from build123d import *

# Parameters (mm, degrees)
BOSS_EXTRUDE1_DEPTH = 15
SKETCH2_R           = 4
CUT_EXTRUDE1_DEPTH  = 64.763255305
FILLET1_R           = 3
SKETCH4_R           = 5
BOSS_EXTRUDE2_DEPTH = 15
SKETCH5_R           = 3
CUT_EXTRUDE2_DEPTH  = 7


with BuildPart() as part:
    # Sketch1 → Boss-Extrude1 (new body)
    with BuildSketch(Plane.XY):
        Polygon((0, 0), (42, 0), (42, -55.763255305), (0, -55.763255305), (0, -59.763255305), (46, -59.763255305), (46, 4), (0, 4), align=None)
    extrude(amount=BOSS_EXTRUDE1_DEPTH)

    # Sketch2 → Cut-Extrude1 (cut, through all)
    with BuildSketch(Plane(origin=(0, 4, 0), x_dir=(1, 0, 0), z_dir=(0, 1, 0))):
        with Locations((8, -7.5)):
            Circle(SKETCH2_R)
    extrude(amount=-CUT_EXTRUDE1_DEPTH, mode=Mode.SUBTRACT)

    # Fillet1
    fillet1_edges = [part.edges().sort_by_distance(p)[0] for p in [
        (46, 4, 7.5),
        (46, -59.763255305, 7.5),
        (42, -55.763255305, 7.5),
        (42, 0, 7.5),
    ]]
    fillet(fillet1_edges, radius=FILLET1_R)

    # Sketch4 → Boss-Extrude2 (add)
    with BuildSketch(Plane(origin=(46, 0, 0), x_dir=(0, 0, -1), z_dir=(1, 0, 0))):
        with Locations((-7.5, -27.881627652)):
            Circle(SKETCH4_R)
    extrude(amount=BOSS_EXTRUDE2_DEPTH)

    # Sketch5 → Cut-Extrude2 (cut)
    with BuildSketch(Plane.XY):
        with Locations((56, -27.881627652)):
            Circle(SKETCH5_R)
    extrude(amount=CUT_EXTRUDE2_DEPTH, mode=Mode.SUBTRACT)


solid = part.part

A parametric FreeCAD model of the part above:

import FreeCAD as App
import Part
import Sketcher

V = App.Vector


def edges_at(feature, points):
    """Names of the edges that pass closest to the given points."""
    edges = feature.Shape.Edges
    near = lambda p: min(range(len(edges)), key=lambda i: edges[i].distToShape(Part.Vertex(*p))[0])
    return sorted({f"Edge{near(p) + 1}" for p in points})

doc = App.newDocument("Part")
body = doc.addObject("PartDesign::Body", "Body")

sketch1 = body.newObject("Sketcher::SketchObject", "Sketch")
sketch1.AttachmentSupport = (doc.getObject("XY_Plane"), [""])
sketch1.MapMode = "FlatFace"
sketch1.addGeometry(Part.LineSegment(V(0, 0, 0), V(42, 0, 0)), False)
sketch1.addGeometry(Part.LineSegment(V(42, 0, 0), V(42, -55.8, 0)), False)
sketch1.addGeometry(Part.LineSegment(V(42, -55.8, 0), V(0, -55.8, 0)), False)
sketch1.addGeometry(Part.LineSegment(V(0, -55.8, 0), V(0, -59.8, 0)), False)
sketch1.addGeometry(Part.LineSegment(V(0, -59.8, 0), V(46, -59.8, 0)), False)
sketch1.addGeometry(Part.LineSegment(V(46, -59.8, 0), V(46, 4, 0)), False)
sketch1.addGeometry(Part.LineSegment(V(46, 4, 0), V(0, 4, 0)), False)
sketch1.addGeometry(Part.LineSegment(V(0, 4, 0), V(0, 0, 0)), False)
sketch1.addConstraint(Sketcher.Constraint("Coincident", 0, 2, 1, 1))
sketch1.addConstraint(Sketcher.Constraint("Coincident", 1, 2, 2, 1))
sketch1.addConstraint(Sketcher.Constraint("Coincident", 2, 2, 3, 1))
sketch1.addConstraint(Sketcher.Constraint("Coincident", 3, 2, 4, 1))
sketch1.addConstraint(Sketcher.Constraint("Coincident", 4, 2, 5, 1))
sketch1.addConstraint(Sketcher.Constraint("Coincident", 5, 2, 6, 1))
sketch1.addConstraint(Sketcher.Constraint("Coincident", 6, 2, 7, 1))
sketch1.addConstraint(Sketcher.Constraint("Coincident", 7, 2, 0, 1))
sketch1.addConstraint(Sketcher.Constraint("Horizontal", 0))
sketch1.addConstraint(Sketcher.Constraint("Vertical", 1))
sketch1.addConstraint(Sketcher.Constraint("Horizontal", 2))
sketch1.addConstraint(Sketcher.Constraint("Vertical", 3))
sketch1.addConstraint(Sketcher.Constraint("Horizontal", 4))
sketch1.addConstraint(Sketcher.Constraint("Vertical", 5))
sketch1.addConstraint(Sketcher.Constraint("Horizontal", 6))
sketch1.addConstraint(Sketcher.Constraint("Vertical", 7))
sketch1.addConstraint(Sketcher.Constraint("Coincident", 7, 2, -1, 1))
sketch1.addConstraint(Sketcher.Constraint("PointOnObject", 2, 2, -2))
sketch1.addConstraint(Sketcher.Constraint("Equal", 3, 7))
sketch1.addConstraint(Sketcher.Constraint("DistanceX", 0, 1, 0, 2, 42.0))
sketch1.addConstraint(Sketcher.Constraint("DistanceX", 4, 1, 4, 2, 46.0))
sketch1.addConstraint(Sketcher.Constraint("DistanceY", 3, 2, 3, 1, 4.0))
sketch1.addConstraint(Sketcher.Constraint("DistanceY", 1, 2, 1, 1, 55.763255))
pad1 = body.newObject("PartDesign::Pad", "Pad")
pad1.Profile = sketch1
pad1.Length = 15

sketch2 = body.newObject("Sketcher::SketchObject", "Sketch001")
sketch2.AttachmentSupport = (doc.getObject("XZ_Plane"), [""])
sketch2.MapMode = "FlatFace"
sketch2.AttachmentOffset = App.Placement(V(0, 0, -4), App.Rotation())
sketch2.addGeometry(Part.Circle(V(8, 7.5, 0), V(0, 0, 1), 4), False)
sketch2.addConstraint(Sketcher.Constraint("Diameter", 0, 8.0))
sketch2.addConstraint(Sketcher.Constraint("DistanceX", -1, 1, 0, 3, 8.0))
sketch2.addConstraint(Sketcher.Constraint("DistanceY", -1, 1, 0, 3, 7.5))
pocket1 = body.newObject("PartDesign::Pocket", "Pocket")
pocket1.Profile = sketch2
pocket1.Type = "ThroughAll"
pocket1.Reversed = True
doc.recompute()

fillet = body.newObject("PartDesign::Fillet", "Fillet")
fillet.Base = (pocket1, edges_at(pocket1, [
    (46, 4, 7.5),
    (46, -59.763, 7.5),
    (42, -55.763, 7.5),
    (42, 0, 7.5),
]))
fillet.Radius = 3

sketch3 = body.newObject("Sketcher::SketchObject", "Sketch002")
sketch3.AttachmentSupport = (doc.getObject("YZ_Plane"), [""])
sketch3.MapMode = "FlatFace"
sketch3.AttachmentOffset = App.Placement(V(0, 0, 46), App.Rotation())
sketch3.addGeometry(Part.Circle(V(-28, 8, 0), V(0, 0, 1), 5), False)
sketch3.addConstraint(Sketcher.Constraint("Diameter", 0, 10.0))
sketch3.addConstraint(Sketcher.Constraint("DistanceY", -1, 1, 0, 3, 7.5))
sketch3.addConstraint(Sketcher.Constraint("DistanceX", 0, 3, -1, 1, 27.881628))
pad2 = body.newObject("PartDesign::Pad", "Pad001")
pad2.Profile = sketch3
pad2.Length = 15

sketch4 = body.newObject("Sketcher::SketchObject", "Sketch003")
sketch4.AttachmentSupport = (doc.getObject("XY_Plane"), [""])
sketch4.MapMode = "FlatFace"
sketch4.addGeometry(Part.Circle(V(56, -27.9, 0), V(0, 0, 1), 3), False)
sketch4.addConstraint(Sketcher.Constraint("Diameter", 0, 6.0))
sketch4.addConstraint(Sketcher.Constraint("DistanceX", -1, 1, 0, 3, 56.0))
sketch4.addConstraint(Sketcher.Constraint("DistanceY", 0, 3, -1, 1, 27.881628))
pocket2 = body.newObject("PartDesign::Pocket", "Pocket001")
pocket2.Profile = sketch4
pocket2.Length = 7
pocket2.Reversed = True

doc.recompute()
